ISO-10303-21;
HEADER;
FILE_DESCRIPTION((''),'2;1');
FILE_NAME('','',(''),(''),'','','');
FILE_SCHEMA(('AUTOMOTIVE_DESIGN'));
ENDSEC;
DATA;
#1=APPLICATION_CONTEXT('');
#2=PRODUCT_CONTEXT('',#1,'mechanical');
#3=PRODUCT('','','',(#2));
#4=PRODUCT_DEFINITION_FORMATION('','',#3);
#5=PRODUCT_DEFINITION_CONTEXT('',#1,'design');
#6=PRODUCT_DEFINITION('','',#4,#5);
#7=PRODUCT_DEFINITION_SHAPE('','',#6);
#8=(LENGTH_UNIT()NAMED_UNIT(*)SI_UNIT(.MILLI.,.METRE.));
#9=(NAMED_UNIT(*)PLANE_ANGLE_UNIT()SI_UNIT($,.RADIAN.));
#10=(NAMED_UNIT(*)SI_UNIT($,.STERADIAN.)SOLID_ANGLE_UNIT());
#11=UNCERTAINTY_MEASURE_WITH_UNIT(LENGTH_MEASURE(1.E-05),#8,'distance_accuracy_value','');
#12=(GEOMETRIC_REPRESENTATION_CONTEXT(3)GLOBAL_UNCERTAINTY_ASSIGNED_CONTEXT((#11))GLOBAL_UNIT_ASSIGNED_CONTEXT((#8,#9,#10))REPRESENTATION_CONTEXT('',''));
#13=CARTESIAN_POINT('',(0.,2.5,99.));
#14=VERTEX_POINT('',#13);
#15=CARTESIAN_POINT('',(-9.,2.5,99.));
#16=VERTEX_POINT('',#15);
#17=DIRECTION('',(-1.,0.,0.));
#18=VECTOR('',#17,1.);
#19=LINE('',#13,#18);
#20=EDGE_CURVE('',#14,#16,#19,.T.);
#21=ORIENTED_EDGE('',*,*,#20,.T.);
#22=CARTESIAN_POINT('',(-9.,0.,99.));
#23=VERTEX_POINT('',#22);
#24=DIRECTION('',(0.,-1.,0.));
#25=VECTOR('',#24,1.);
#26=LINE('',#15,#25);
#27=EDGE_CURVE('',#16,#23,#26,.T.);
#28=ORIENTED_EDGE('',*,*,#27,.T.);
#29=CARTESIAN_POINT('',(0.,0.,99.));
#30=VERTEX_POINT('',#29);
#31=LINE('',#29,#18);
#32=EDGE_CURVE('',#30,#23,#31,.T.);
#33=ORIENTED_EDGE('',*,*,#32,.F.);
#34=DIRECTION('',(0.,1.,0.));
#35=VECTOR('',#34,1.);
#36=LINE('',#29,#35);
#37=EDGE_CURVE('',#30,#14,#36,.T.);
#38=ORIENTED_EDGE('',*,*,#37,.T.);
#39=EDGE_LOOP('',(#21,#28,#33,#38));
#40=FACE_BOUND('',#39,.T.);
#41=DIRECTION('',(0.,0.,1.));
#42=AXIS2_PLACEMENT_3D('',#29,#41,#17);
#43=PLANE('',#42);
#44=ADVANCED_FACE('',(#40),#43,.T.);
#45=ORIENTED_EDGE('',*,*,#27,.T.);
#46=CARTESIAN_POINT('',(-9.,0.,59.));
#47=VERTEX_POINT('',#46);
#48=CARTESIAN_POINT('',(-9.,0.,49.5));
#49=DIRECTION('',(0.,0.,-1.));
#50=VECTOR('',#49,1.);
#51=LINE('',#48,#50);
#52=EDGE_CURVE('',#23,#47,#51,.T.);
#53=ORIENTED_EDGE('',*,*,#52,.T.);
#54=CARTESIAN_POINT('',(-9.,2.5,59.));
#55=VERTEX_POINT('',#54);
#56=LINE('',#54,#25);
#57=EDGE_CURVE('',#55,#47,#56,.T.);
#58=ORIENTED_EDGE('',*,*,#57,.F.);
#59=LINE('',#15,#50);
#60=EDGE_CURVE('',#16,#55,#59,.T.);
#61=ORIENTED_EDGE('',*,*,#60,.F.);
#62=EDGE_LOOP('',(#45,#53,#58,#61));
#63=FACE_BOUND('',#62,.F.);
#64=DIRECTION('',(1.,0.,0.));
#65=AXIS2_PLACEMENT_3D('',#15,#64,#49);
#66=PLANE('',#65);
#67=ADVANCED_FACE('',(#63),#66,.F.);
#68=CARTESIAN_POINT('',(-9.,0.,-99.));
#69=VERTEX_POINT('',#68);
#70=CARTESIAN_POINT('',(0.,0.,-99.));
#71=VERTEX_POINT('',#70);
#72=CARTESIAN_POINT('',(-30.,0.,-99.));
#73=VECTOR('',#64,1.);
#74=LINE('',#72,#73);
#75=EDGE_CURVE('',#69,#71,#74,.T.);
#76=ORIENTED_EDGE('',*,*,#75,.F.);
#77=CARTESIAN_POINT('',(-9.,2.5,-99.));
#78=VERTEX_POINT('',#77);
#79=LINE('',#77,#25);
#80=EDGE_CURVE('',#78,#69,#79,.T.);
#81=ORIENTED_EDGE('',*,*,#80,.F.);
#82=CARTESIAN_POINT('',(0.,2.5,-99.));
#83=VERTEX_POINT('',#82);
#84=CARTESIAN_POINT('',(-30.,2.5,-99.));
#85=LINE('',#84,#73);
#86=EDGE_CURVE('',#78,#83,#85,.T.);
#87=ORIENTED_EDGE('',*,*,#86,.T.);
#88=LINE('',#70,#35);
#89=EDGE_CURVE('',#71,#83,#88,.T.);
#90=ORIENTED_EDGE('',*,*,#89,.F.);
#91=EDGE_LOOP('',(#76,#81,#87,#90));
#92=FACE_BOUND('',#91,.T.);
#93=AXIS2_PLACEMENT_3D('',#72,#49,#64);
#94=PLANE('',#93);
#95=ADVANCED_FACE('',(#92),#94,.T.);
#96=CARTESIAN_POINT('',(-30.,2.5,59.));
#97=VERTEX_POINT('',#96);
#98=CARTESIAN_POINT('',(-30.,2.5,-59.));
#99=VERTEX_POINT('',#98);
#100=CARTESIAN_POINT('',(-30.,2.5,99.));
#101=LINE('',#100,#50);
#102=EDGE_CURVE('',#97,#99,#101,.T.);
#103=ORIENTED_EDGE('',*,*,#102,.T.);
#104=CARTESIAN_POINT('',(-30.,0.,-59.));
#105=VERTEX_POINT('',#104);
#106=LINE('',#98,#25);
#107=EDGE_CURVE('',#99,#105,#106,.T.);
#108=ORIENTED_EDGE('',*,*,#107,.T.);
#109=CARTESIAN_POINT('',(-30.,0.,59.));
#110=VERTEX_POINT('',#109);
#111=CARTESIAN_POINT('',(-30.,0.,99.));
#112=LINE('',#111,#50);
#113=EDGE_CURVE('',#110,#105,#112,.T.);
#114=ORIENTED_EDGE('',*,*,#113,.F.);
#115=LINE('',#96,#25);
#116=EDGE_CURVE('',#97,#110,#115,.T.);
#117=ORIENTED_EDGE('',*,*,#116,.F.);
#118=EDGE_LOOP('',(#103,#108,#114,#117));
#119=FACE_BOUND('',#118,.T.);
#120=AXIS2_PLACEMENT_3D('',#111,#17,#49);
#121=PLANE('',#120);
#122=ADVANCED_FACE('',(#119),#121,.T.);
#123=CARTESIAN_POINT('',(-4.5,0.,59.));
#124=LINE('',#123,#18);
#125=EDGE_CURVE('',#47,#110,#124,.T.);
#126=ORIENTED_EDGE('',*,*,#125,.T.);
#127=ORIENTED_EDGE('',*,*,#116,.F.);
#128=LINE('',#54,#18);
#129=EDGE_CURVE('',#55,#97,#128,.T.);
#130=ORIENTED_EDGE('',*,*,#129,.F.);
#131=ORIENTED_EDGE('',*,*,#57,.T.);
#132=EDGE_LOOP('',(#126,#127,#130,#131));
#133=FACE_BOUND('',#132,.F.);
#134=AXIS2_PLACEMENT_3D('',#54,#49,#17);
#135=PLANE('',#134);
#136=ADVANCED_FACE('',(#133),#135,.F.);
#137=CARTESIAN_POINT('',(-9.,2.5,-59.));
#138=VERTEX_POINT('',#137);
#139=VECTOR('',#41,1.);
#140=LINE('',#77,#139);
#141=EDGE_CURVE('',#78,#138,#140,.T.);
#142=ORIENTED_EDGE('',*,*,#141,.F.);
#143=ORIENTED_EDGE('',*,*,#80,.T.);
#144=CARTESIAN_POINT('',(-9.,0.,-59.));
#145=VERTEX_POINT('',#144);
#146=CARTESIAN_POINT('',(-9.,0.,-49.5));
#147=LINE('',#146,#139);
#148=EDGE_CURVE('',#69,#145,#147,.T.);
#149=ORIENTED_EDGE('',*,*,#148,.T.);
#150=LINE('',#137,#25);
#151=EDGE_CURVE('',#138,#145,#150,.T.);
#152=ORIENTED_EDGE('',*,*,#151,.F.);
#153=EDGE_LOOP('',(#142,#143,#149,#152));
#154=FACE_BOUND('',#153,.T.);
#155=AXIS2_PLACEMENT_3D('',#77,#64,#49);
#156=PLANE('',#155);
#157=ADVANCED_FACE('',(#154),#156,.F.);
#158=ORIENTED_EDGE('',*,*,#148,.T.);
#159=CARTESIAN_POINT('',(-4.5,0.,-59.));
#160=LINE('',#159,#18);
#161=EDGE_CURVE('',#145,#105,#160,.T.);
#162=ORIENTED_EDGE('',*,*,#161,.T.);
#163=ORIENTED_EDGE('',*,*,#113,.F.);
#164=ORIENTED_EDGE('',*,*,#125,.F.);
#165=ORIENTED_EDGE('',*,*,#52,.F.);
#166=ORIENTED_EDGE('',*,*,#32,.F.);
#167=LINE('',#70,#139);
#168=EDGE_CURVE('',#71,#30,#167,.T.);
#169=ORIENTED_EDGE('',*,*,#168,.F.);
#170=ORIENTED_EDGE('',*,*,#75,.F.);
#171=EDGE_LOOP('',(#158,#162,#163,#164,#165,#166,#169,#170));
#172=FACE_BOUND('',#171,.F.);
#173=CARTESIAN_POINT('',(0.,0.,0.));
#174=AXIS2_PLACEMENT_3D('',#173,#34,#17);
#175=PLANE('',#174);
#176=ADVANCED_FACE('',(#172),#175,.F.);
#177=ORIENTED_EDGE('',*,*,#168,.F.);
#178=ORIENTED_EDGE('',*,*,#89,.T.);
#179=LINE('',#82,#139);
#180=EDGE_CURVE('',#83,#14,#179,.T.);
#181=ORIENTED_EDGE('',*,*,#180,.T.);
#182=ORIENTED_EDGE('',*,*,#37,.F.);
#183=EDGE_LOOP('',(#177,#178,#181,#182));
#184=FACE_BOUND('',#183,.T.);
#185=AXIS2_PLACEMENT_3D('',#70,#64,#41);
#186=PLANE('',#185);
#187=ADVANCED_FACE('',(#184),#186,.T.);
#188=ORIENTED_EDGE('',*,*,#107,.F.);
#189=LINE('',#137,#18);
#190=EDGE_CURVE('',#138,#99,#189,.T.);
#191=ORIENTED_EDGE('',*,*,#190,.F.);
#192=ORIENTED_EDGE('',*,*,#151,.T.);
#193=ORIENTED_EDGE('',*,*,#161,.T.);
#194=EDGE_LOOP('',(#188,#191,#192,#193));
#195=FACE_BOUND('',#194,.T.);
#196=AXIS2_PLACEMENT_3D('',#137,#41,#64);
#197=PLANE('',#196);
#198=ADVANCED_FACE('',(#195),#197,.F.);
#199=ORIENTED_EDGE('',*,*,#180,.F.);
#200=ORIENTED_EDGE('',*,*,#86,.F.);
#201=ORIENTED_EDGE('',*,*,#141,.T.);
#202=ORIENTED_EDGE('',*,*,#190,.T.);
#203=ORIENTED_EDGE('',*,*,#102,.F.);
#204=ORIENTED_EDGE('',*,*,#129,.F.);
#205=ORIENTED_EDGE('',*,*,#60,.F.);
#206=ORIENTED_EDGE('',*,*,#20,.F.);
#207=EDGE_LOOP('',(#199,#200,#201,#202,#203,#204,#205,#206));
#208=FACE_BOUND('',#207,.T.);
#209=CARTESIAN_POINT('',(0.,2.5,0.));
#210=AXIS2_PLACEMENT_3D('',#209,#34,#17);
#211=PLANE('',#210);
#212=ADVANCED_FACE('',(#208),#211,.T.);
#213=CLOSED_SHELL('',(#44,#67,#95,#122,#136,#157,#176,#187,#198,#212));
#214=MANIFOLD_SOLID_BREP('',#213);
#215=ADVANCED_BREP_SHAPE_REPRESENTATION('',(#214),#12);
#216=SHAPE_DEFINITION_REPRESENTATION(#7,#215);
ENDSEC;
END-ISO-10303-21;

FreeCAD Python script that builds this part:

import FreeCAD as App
import Part
import Sketcher
from FreeCAD import Vector
Q = App.Units.Quantity


def add_polygon(sketch, points):
    """Adds a closed chain of lines whose ends are joined by coincident constraints."""
    first, n = sketch.GeometryCount, len(points)
    for a, b in zip(points, points[1:] + points[:1]):
        sketch.addGeometry(Part.LineSegment(App.Vector(*a, 0), App.Vector(*b, 0)), False)
    for i in range(n):
        sketch.addConstraint(Sketcher.Constraint("Coincident", first + i, 2, first + (i + 1) % n, 1))

doc = App.newDocument("Part")
body = doc.addObject("PartDesign::Body", "Body")

sketch1 = body.newObject("Sketcher::SketchObject", "Sketch")
sketch1.AttachmentSupport = (doc.getObject("XZ_Plane"), [""])
sketch1.MapMode = "FlatFace"
add_polygon(sketch1, [(-30, 99), (0, 99), (0, -99), (-30, -99)])
sketch1.addConstraint(Sketcher.Constraint("Horizontal", 0))
sketch1.addConstraint(Sketcher.Constraint("Vertical", 1))
sketch1.addConstraint(Sketcher.Constraint("Horizontal", 2))
sketch1.addConstraint(Sketcher.Constraint("Vertical", 3))
sketch1.addConstraint(Sketcher.Constraint("Symmetric", 0, 2, 1, 2, -1, 1))
sketch1.addConstraint(Sketcher.Constraint("DistanceX", 0, 1, 0, 2, Q("30 mm")))
sketch1.addConstraint(Sketcher.Constraint("DistanceY", 1, 2, 1, 1, Q("198 mm")))
pad1 = body.newObject("PartDesign::Pad", "Pad")
pad1.Profile = sketch1
pad1.Length = 2.5
pad1.Reversed = True

sketch2 = body.newObject("Sketcher::SketchObject", "Sketch001")
sketch2.AttachmentSupport = (doc.getObject("XZ_Plane"), [""])
sketch2.MapMode = "FlatFace"
sketch2.AttachmentOffset = App.Placement(Vector(0, 0, -2.5), App.Rotation())
add_polygon(sketch2, [(-9, 59), (-30, 59), (-30, 99), (-9, 99)])
sketch2.addConstraint(Sketcher.Constraint("Horizontal", 0))
sketch2.addConstraint(Sketcher.Constraint("Vertical", 1))
sketch2.addConstraint(Sketcher.Constraint("Horizontal", 2))
sketch2.addConstraint(Sketcher.Constraint("Vertical", 3))
sketch2.addConstraint(Sketcher.Constraint("DistanceX", 0, 2, 0, 1, Q("21 mm")))
sketch2.addConstraint(Sketcher.Constraint("DistanceY", 1, 1, 1, 2, Q("40 mm")))
sketch2.addConstraint(Sketcher.Constraint("DistanceX", 0, 2, -1, 1, Q("30 mm")))
sketch2.addConstraint(Sketcher.Constraint("DistanceY", -1, 1, 0, 2, Q("59 mm")))
pocket1 = body.newObject("PartDesign::Pocket", "Pocket")
pocket1.Profile = sketch2
pocket1.Type = "ThroughAll"
pocket1.Reversed = True
doc.recompute()

mirrored = body.newObject("PartDesign::Mirrored", "Mirrored")
mirrored.Originals = [pocket1]
mirrored.MirrorPlane = (doc.getObject("XY_Plane"), [""])
body.Tip = mirrored

doc.recompute()
